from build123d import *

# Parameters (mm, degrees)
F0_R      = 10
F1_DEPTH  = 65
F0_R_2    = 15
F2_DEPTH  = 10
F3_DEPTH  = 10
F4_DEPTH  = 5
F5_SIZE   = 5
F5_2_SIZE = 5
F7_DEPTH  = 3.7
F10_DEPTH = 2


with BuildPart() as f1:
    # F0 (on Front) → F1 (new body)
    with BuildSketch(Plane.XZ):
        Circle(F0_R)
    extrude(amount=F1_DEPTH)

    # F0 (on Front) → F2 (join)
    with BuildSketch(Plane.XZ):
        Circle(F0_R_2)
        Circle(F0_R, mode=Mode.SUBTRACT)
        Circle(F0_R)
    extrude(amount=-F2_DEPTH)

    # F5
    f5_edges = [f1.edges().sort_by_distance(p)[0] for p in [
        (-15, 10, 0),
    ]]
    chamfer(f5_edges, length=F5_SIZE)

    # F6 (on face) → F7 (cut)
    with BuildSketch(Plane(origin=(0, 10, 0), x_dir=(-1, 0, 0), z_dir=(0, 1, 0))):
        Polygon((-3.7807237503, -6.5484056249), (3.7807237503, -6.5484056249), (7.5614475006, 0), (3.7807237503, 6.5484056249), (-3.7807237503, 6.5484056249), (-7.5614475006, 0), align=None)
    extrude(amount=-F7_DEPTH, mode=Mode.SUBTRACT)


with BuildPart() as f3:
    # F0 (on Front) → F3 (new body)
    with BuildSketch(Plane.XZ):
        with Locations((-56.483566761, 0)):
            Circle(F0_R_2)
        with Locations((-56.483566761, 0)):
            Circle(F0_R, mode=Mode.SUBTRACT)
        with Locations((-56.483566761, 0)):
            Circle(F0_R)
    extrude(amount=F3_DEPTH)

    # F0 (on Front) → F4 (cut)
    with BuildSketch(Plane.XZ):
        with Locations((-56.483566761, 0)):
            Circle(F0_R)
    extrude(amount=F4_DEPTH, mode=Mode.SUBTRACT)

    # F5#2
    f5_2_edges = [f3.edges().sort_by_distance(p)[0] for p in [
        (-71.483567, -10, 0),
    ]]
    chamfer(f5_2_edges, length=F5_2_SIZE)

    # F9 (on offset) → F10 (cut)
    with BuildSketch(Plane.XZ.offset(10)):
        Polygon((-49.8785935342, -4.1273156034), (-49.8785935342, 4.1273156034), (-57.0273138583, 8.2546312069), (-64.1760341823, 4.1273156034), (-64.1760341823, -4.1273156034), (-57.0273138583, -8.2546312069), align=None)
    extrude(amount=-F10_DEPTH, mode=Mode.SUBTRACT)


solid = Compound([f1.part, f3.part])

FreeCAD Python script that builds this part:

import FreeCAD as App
import Part
import Sketcher
from FreeCAD import Vector
Q = App.Units.Quantity


def edges_at(feature, points):
    """Names of the edges that pass closest to the given points."""
    edges = feature.Shape.Edges
    near = lambda p: min(range(len(edges)), key=lambda i: edges[i].distToShape(Part.Vertex(*p))[0])
    return sorted({f"Edge{near(p) + 1}" for p in points})


def add_polygon(sketch, points):
    """Adds a closed chain of lines whose ends are joined by coincident constraints."""
    first, n = sketch.GeometryCount, len(points)
    for a, b in zip(points, points[1:] + points[:1]):
        sketch.addGeometry(Part.LineSegment(App.Vector(*a, 0), App.Vector(*b, 0)), False)
    for i in range(n):
        sketch.addConstraint(Sketcher.Constraint("Coincident", first + i, 2, first + (i + 1) % n, 1))

doc = App.newDocument("Part")
body = doc.addObject("PartDesign::Body", "Body")

sketch1 = body.newObject("Sketcher::SketchObject", "Sketch")
sketch1.AttachmentSupport = (doc.getObject("XZ_Plane"), [""])
sketch1.MapMode = "FlatFace"
sketch1.addGeometry(Part.Circle(Vector(0, 0, 0), Vector(0, 0, 1), 10), False)
sketch1.addConstraint(Sketcher.Constraint("Coincident", 0, 3, -1, 1))
sketch1.addConstraint(Sketcher.Constraint("Diameter", 0, 20.0))
pad1 = body.newObject("PartDesign::Pad", "Pad")
pad1.Profile = sketch1
pad1.Length = 65

sketch2 = body.newObject("Sketcher::SketchObject", "Sketch001")
sketch2.AttachmentSupport = (doc.getObject("XZ_Plane"), [""])
sketch2.MapMode = "FlatFace"
sketch2.addGeometry(Part.Circle(Vector(0, 0, 0), Vector(0, 0, 1), 15), False)
sketch2.addConstraint(Sketcher.Constraint("Coincident", 0, 3, -1, 1))
sketch2.addConstraint(Sketcher.Constraint("Diameter", 0, 30.0))
pad2 = body.newObject("PartDesign::Pad", "Pad001")
pad2.Profile = sketch2
pad2.Length = 10
pad2.Reversed = True
doc.recompute()

chamfer = body.newObject("PartDesign::Chamfer", "Chamfer")
chamfer.Base = (pad2, edges_at(pad2, [(-15, 10, 0)]))
chamfer.Size = 5

sketch3 = body.newObject("Sketcher::SketchObject", "Sketch002")
sketch3.AttachmentSupport = (doc.getObject("XZ_Plane"), [""])
sketch3.MapMode = "FlatFace"
sketch3.AttachmentOffset = App.Placement(Vector(0, 0, -10), App.Rotation())
add_polygon(sketch3, [(3.780724, -6.548406), (-3.780724, -6.548406), (-7.561448, 0), (-3.780724, 6.548406), (3.780724, 6.548406), (7.561448, 0)])
sketch3.addConstraint(Sketcher.Constraint("Horizontal", 0))
sketch3.addConstraint(Sketcher.Constraint("Horizontal", 3))
sketch3.addConstraint(Sketcher.Constraint("Symmetric", 0, 2, 3, 2, -1, 1))
sketch3.addConstraint(Sketcher.Constraint("Symmetric", 1, 2, 4, 2, -1, 1))
sketch3.addConstraint(Sketcher.Constraint("PointOnObject", 1, 2, -1))
sketch3.addConstraint(Sketcher.Constraint("Parallel", 2, 5))
sketch3.addConstraint(Sketcher.Constraint("Vertical", 0, 2, 2, 2))
sketch3.addConstraint(Sketcher.Constraint("Angle", 1, Q("120 deg")))
sketch3.addConstraint(Sketcher.Constraint("DistanceX", 0, 2, 0, 1, 7.561447))
sketch3.addConstraint(Sketcher.Constraint("DistanceY", 0, 2, 2, 2, 13.096811))
pocket1 = body.newObject("PartDesign::Pocket", "Pocket")
pocket1.Profile = sketch3
pocket1.Length = 3.7
pocket1.Reversed = True
body2 = doc.addObject("PartDesign::Body", "Body001")

sketch4 = body2.newObject("Sketcher::SketchObject", "Sketch003")
sketch4.AttachmentSupport = (doc.getObject("XZ_Plane001"), [""])
sketch4.MapMode = "FlatFace"
sketch4.addGeometry(Part.Circle(Vector(-56.483567, 0, 0), Vector(0, 0, 1), 15), False)
sketch4.addConstraint(Sketcher.Constraint("PointOnObject", 0, 3, -1))
sketch4.addConstraint(Sketcher.Constraint("Diameter", 0, 30.0))
sketch4.addConstraint(Sketcher.Constraint("DistanceX", 0, 3, -1, 1, 56.483567))
pad3 = body2.newObject("PartDesign::Pad", "Pad002")
pad3.Profile = sketch4
pad3.Length = 10

sketch5 = body2.newObject("Sketcher::SketchObject", "Sketch004")
sketch5.AttachmentSupport = (doc.getObject("XZ_Plane001"), [""])
sketch5.MapMode = "FlatFace"
sketch5.addGeometry(Part.Circle(Vector(-56.483567, 0, 0), Vector(0, 0, 1), 10), False)
sketch5.addConstraint(Sketcher.Constraint("PointOnObject", 0, 3, -1))
sketch5.addConstraint(Sketcher.Constraint("Diameter", 0, 20.0))
sketch5.addConstraint(Sketcher.Constraint("DistanceX", 0, 3, -1, 1, 56.483567))
pocket2 = body2.newObject("PartDesign::Pocket", "Pocket001")
pocket2.Profile = sketch5
pocket2.Length = 5
pocket2.Reversed = True
doc.recompute()

chamfer2 = body2.newObject("PartDesign::Chamfer", "Chamfer001")
chamfer2.Base = (pocket2, edges_at(pocket2, [(-71.484, -10, 0)]))
chamfer2.Size = 5

sketch6 = body2.newObject("Sketcher::SketchObject", "Sketch005")
sketch6.AttachmentSupport = (doc.getObject("XZ_Plane001"), [""])
sketch6.MapMode = "FlatFace"
sketch6.AttachmentOffset = App.Placement(Vector(0, 0, 10), App.Rotation())
add_polygon(sketch6, [(-49.878594, -4.127316), (-49.878594, 4.127316), (-57.027314, 8.254631), (-64.176034, 4.127316), (-64.176034, -4.127316), (-57.027314, -8.254631)])
sketch6.addConstraint(Sketcher.Constraint("Vertical", 0))
sketch6.addConstraint(Sketcher.Constraint("Vertical", 3))
sketch6.addConstraint(Sketcher.Constraint("Symmetric", 1, 2, 4, 2, -1))
sketch6.addConstraint(Sketcher.Constraint("Parallel", 1, 4))
sketch6.addConstraint(Sketcher.Constraint("Parallel", 2, 5))
sketch6.addConstraint(Sketcher.Constraint("Horizontal", 0, 2, 2, 2))
sketch6.addConstraint(Sketcher.Constraint("Horizontal", 3, 2, 5, 2))
sketch6.addConstraint(Sketcher.Constraint("Angle", 1, Q("150 deg")))
sketch6.addConstraint(Sketcher.Constraint("DistanceY", 0, 1, 0, 2, 8.254631))
sketch6.addConstraint(Sketcher.Constraint("Distance", 1, 8.254631))
sketch6.addConstraint(Sketcher.Constraint("DistanceX", 0, 2, -1, 1, 49.878594))
pocket3 = body2.newObject("PartDesign::Pocket", "Pocket002")
pocket3.Profile = sketch6
pocket3.Length = 2

doc.recompute()
